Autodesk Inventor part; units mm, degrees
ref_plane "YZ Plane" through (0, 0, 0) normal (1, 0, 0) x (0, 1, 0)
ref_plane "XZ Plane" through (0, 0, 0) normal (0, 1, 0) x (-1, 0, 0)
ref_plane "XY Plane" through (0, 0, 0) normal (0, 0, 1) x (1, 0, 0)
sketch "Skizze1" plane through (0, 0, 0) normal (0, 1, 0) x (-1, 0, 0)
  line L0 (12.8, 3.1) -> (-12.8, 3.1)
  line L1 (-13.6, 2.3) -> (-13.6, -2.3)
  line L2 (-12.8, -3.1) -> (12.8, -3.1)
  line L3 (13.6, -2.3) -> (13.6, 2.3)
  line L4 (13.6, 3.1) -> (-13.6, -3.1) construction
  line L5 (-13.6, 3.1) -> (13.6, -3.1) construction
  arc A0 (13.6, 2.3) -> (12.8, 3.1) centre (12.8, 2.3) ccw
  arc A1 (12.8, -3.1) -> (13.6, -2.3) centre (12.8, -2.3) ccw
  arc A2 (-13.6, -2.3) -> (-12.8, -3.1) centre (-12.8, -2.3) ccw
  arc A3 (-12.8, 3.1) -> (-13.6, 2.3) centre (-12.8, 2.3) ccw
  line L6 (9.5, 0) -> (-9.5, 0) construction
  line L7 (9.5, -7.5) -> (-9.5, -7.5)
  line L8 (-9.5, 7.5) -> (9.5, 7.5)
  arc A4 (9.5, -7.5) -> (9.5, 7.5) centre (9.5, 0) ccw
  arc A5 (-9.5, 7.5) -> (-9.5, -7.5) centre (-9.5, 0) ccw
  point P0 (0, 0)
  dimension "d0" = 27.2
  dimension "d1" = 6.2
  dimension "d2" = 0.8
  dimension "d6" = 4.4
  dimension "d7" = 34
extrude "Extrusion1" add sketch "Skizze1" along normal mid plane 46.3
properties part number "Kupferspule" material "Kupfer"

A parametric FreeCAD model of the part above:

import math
import FreeCAD as App
import Part
import Sketcher

V = App.Vector
Q = App.Units.Quantity

doc = App.newDocument("Part")
params = doc.addObject("Spreadsheet::Sheet", "Params")
for row, (alias, value) in enumerate([
    ("sketch1_radius", "0.8 mm"),
    ("sketch1_radius2", "7.5 mm"),
    ("sketch1_width", "19 mm"),
    ("sketch1_width2", "25.6 mm"),
    ("pad1_length", "46.3 mm"),
], start=1):
    params.set(f"A{row}", alias)
    params.set(f"B{row}", "=" + value)
    params.setAlias(f"B{row}", alias)

body = doc.addObject("PartDesign::Body", "Body")

sketch1 = body.newObject("Sketcher::SketchObject", "Sketch")
sketch1.AttachmentSupport = (doc.getObject("XZ_Plane"), [""])
sketch1.MapMode = "FlatFace"
sketch1.addGeometry(Part.LineSegment(V(9.5, -7.5, 0), V(-9.5, -7.5, 0)), False)
sketch1.addGeometry(Part.ArcOfCircle(Part.Circle(V(-9.5, 0, 0), V(0, 0, 1), 7.5), math.radians(90), math.radians(270)), False)
sketch1.addGeometry(Part.LineSegment(V(-9.5, 7.5, 0), V(9.5, 7.5, 0)), False)
sketch1.addGeometry(Part.ArcOfCircle(Part.Circle(V(9.5, 0, 0), V(0, 0, 1), 7.5), math.radians(-90), math.radians(90)), False)
sketch1.addGeometry(Part.LineSegment(V(12.8, 3.1, 0), V(-12.8, 3.1, 0)), False)
sketch1.addGeometry(Part.ArcOfCircle(Part.Circle(V(-12.8, 2.3, 0), V(0, 0, 1), 0.8), math.radians(90), math.radians(180)), False)
sketch1.addGeometry(Part.LineSegment(V(-13.6, 2.3, 0), V(-13.6, -2.3, 0)), False)
sketch1.addGeometry(Part.ArcOfCircle(Part.Circle(V(-12.8, -2.3, 0), V(0, 0, 1), 0.8), math.radians(180), math.radians(270)), False)
sketch1.addGeometry(Part.LineSegment(V(-12.8, -3.1, 0), V(12.8, -3.1, 0)), False)
sketch1.addGeometry(Part.ArcOfCircle(Part.Circle(V(12.8, -2.3, 0), V(0, 0, 1), 0.8), math.radians(-90), math.radians(0)), False)
sketch1.addGeometry(Part.LineSegment(V(13.6, -2.3, 0), V(13.6, 2.3, 0)), False)
sketch1.addGeometry(Part.ArcOfCircle(Part.Circle(V(12.8, 2.3, 0), V(0, 0, 1), 0.8), math.radians(0), math.radians(90)), False)
sketch1.addConstraint(Sketcher.Constraint("Tangent", 0, 2, 1, 2))
sketch1.addConstraint(Sketcher.Constraint("Tangent", 1, 1, 2, 1))
sketch1.addConstraint(Sketcher.Constraint("Tangent", 2, 2, 3, 2))
sketch1.addConstraint(Sketcher.Constraint("Tangent", 3, 1, 0, 1))
sketch1.addConstraint(Sketcher.Constraint("Tangent", 4, 2, 5, 1))
sketch1.addConstraint(Sketcher.Constraint("Tangent", 5, 2, 6, 1))
sketch1.addConstraint(Sketcher.Constraint("Tangent", 6, 2, 7, 1))
sketch1.addConstraint(Sketcher.Constraint("Tangent", 7, 2, 8, 1))
sketch1.addConstraint(Sketcher.Constraint("Tangent", 8, 2, 9, 1))
sketch1.addConstraint(Sketcher.Constraint("Tangent", 9, 2, 10, 1))
sketch1.addConstraint(Sketcher.Constraint("Tangent", 10, 2, 11, 1))
sketch1.addConstraint(Sketcher.Constraint("Tangent", 11, 2, 4, 1))
sketch1.addConstraint(Sketcher.Constraint("Horizontal", 0))
sketch1.addConstraint(Sketcher.Constraint("Horizontal", 2))
sketch1.addConstraint(Sketcher.Constraint("Horizontal", 4))
sketch1.addConstraint(Sketcher.Constraint("Vertical", 6))
sketch1.addConstraint(Sketcher.Constraint("Horizontal", 8))
sketch1.addConstraint(Sketcher.Constraint("Vertical", 10))
sketch1.addConstraint(Sketcher.Constraint("Equal", 5, 7))
sketch1.addConstraint(Sketcher.Constraint("Equal", 7, 9))
sketch1.addConstraint(Sketcher.Constraint("Equal", 9, 11))
sketch1.addConstraint(Sketcher.Constraint("Symmetric", 1, 3, 3, 3, -1, 1))
sketch1.addConstraint(Sketcher.Constraint("Symmetric", 5, 3, 9, 3, -1, 1))
sketch1.addConstraint(Sketcher.Constraint("Radius", 5, Q("0.8 mm")))
sketch1.addConstraint(Sketcher.Constraint("Radius", 1, Q("7.5 mm")))
sketch1.addConstraint(Sketcher.Constraint("DistanceY", 4, 2, 1, 1, Q("4.4 mm")))
sketch1.addConstraint(Sketcher.Constraint("DistanceX", 0, 2, 0, 1, Q("19 mm")))
sketch1.addConstraint(Sketcher.Constraint("DistanceX", 4, 2, 4, 1, Q("25.6 mm")))
sketch1.setExpression("Constraints[23]", "Params.sketch1_radius")
sketch1.setExpression("Constraints[24]", "Params.sketch1_radius2")
sketch1.setExpression("Constraints[26]", "Params.sketch1_width")
sketch1.setExpression("Constraints[27]", "Params.sketch1_width2")
pad1 = body.newObject("PartDesign::Pad", "Pad")
pad1.Profile = sketch1
pad1.setExpression("Length", "Params.pad1_length")
pad1.Midplane = True

doc.recompute()
